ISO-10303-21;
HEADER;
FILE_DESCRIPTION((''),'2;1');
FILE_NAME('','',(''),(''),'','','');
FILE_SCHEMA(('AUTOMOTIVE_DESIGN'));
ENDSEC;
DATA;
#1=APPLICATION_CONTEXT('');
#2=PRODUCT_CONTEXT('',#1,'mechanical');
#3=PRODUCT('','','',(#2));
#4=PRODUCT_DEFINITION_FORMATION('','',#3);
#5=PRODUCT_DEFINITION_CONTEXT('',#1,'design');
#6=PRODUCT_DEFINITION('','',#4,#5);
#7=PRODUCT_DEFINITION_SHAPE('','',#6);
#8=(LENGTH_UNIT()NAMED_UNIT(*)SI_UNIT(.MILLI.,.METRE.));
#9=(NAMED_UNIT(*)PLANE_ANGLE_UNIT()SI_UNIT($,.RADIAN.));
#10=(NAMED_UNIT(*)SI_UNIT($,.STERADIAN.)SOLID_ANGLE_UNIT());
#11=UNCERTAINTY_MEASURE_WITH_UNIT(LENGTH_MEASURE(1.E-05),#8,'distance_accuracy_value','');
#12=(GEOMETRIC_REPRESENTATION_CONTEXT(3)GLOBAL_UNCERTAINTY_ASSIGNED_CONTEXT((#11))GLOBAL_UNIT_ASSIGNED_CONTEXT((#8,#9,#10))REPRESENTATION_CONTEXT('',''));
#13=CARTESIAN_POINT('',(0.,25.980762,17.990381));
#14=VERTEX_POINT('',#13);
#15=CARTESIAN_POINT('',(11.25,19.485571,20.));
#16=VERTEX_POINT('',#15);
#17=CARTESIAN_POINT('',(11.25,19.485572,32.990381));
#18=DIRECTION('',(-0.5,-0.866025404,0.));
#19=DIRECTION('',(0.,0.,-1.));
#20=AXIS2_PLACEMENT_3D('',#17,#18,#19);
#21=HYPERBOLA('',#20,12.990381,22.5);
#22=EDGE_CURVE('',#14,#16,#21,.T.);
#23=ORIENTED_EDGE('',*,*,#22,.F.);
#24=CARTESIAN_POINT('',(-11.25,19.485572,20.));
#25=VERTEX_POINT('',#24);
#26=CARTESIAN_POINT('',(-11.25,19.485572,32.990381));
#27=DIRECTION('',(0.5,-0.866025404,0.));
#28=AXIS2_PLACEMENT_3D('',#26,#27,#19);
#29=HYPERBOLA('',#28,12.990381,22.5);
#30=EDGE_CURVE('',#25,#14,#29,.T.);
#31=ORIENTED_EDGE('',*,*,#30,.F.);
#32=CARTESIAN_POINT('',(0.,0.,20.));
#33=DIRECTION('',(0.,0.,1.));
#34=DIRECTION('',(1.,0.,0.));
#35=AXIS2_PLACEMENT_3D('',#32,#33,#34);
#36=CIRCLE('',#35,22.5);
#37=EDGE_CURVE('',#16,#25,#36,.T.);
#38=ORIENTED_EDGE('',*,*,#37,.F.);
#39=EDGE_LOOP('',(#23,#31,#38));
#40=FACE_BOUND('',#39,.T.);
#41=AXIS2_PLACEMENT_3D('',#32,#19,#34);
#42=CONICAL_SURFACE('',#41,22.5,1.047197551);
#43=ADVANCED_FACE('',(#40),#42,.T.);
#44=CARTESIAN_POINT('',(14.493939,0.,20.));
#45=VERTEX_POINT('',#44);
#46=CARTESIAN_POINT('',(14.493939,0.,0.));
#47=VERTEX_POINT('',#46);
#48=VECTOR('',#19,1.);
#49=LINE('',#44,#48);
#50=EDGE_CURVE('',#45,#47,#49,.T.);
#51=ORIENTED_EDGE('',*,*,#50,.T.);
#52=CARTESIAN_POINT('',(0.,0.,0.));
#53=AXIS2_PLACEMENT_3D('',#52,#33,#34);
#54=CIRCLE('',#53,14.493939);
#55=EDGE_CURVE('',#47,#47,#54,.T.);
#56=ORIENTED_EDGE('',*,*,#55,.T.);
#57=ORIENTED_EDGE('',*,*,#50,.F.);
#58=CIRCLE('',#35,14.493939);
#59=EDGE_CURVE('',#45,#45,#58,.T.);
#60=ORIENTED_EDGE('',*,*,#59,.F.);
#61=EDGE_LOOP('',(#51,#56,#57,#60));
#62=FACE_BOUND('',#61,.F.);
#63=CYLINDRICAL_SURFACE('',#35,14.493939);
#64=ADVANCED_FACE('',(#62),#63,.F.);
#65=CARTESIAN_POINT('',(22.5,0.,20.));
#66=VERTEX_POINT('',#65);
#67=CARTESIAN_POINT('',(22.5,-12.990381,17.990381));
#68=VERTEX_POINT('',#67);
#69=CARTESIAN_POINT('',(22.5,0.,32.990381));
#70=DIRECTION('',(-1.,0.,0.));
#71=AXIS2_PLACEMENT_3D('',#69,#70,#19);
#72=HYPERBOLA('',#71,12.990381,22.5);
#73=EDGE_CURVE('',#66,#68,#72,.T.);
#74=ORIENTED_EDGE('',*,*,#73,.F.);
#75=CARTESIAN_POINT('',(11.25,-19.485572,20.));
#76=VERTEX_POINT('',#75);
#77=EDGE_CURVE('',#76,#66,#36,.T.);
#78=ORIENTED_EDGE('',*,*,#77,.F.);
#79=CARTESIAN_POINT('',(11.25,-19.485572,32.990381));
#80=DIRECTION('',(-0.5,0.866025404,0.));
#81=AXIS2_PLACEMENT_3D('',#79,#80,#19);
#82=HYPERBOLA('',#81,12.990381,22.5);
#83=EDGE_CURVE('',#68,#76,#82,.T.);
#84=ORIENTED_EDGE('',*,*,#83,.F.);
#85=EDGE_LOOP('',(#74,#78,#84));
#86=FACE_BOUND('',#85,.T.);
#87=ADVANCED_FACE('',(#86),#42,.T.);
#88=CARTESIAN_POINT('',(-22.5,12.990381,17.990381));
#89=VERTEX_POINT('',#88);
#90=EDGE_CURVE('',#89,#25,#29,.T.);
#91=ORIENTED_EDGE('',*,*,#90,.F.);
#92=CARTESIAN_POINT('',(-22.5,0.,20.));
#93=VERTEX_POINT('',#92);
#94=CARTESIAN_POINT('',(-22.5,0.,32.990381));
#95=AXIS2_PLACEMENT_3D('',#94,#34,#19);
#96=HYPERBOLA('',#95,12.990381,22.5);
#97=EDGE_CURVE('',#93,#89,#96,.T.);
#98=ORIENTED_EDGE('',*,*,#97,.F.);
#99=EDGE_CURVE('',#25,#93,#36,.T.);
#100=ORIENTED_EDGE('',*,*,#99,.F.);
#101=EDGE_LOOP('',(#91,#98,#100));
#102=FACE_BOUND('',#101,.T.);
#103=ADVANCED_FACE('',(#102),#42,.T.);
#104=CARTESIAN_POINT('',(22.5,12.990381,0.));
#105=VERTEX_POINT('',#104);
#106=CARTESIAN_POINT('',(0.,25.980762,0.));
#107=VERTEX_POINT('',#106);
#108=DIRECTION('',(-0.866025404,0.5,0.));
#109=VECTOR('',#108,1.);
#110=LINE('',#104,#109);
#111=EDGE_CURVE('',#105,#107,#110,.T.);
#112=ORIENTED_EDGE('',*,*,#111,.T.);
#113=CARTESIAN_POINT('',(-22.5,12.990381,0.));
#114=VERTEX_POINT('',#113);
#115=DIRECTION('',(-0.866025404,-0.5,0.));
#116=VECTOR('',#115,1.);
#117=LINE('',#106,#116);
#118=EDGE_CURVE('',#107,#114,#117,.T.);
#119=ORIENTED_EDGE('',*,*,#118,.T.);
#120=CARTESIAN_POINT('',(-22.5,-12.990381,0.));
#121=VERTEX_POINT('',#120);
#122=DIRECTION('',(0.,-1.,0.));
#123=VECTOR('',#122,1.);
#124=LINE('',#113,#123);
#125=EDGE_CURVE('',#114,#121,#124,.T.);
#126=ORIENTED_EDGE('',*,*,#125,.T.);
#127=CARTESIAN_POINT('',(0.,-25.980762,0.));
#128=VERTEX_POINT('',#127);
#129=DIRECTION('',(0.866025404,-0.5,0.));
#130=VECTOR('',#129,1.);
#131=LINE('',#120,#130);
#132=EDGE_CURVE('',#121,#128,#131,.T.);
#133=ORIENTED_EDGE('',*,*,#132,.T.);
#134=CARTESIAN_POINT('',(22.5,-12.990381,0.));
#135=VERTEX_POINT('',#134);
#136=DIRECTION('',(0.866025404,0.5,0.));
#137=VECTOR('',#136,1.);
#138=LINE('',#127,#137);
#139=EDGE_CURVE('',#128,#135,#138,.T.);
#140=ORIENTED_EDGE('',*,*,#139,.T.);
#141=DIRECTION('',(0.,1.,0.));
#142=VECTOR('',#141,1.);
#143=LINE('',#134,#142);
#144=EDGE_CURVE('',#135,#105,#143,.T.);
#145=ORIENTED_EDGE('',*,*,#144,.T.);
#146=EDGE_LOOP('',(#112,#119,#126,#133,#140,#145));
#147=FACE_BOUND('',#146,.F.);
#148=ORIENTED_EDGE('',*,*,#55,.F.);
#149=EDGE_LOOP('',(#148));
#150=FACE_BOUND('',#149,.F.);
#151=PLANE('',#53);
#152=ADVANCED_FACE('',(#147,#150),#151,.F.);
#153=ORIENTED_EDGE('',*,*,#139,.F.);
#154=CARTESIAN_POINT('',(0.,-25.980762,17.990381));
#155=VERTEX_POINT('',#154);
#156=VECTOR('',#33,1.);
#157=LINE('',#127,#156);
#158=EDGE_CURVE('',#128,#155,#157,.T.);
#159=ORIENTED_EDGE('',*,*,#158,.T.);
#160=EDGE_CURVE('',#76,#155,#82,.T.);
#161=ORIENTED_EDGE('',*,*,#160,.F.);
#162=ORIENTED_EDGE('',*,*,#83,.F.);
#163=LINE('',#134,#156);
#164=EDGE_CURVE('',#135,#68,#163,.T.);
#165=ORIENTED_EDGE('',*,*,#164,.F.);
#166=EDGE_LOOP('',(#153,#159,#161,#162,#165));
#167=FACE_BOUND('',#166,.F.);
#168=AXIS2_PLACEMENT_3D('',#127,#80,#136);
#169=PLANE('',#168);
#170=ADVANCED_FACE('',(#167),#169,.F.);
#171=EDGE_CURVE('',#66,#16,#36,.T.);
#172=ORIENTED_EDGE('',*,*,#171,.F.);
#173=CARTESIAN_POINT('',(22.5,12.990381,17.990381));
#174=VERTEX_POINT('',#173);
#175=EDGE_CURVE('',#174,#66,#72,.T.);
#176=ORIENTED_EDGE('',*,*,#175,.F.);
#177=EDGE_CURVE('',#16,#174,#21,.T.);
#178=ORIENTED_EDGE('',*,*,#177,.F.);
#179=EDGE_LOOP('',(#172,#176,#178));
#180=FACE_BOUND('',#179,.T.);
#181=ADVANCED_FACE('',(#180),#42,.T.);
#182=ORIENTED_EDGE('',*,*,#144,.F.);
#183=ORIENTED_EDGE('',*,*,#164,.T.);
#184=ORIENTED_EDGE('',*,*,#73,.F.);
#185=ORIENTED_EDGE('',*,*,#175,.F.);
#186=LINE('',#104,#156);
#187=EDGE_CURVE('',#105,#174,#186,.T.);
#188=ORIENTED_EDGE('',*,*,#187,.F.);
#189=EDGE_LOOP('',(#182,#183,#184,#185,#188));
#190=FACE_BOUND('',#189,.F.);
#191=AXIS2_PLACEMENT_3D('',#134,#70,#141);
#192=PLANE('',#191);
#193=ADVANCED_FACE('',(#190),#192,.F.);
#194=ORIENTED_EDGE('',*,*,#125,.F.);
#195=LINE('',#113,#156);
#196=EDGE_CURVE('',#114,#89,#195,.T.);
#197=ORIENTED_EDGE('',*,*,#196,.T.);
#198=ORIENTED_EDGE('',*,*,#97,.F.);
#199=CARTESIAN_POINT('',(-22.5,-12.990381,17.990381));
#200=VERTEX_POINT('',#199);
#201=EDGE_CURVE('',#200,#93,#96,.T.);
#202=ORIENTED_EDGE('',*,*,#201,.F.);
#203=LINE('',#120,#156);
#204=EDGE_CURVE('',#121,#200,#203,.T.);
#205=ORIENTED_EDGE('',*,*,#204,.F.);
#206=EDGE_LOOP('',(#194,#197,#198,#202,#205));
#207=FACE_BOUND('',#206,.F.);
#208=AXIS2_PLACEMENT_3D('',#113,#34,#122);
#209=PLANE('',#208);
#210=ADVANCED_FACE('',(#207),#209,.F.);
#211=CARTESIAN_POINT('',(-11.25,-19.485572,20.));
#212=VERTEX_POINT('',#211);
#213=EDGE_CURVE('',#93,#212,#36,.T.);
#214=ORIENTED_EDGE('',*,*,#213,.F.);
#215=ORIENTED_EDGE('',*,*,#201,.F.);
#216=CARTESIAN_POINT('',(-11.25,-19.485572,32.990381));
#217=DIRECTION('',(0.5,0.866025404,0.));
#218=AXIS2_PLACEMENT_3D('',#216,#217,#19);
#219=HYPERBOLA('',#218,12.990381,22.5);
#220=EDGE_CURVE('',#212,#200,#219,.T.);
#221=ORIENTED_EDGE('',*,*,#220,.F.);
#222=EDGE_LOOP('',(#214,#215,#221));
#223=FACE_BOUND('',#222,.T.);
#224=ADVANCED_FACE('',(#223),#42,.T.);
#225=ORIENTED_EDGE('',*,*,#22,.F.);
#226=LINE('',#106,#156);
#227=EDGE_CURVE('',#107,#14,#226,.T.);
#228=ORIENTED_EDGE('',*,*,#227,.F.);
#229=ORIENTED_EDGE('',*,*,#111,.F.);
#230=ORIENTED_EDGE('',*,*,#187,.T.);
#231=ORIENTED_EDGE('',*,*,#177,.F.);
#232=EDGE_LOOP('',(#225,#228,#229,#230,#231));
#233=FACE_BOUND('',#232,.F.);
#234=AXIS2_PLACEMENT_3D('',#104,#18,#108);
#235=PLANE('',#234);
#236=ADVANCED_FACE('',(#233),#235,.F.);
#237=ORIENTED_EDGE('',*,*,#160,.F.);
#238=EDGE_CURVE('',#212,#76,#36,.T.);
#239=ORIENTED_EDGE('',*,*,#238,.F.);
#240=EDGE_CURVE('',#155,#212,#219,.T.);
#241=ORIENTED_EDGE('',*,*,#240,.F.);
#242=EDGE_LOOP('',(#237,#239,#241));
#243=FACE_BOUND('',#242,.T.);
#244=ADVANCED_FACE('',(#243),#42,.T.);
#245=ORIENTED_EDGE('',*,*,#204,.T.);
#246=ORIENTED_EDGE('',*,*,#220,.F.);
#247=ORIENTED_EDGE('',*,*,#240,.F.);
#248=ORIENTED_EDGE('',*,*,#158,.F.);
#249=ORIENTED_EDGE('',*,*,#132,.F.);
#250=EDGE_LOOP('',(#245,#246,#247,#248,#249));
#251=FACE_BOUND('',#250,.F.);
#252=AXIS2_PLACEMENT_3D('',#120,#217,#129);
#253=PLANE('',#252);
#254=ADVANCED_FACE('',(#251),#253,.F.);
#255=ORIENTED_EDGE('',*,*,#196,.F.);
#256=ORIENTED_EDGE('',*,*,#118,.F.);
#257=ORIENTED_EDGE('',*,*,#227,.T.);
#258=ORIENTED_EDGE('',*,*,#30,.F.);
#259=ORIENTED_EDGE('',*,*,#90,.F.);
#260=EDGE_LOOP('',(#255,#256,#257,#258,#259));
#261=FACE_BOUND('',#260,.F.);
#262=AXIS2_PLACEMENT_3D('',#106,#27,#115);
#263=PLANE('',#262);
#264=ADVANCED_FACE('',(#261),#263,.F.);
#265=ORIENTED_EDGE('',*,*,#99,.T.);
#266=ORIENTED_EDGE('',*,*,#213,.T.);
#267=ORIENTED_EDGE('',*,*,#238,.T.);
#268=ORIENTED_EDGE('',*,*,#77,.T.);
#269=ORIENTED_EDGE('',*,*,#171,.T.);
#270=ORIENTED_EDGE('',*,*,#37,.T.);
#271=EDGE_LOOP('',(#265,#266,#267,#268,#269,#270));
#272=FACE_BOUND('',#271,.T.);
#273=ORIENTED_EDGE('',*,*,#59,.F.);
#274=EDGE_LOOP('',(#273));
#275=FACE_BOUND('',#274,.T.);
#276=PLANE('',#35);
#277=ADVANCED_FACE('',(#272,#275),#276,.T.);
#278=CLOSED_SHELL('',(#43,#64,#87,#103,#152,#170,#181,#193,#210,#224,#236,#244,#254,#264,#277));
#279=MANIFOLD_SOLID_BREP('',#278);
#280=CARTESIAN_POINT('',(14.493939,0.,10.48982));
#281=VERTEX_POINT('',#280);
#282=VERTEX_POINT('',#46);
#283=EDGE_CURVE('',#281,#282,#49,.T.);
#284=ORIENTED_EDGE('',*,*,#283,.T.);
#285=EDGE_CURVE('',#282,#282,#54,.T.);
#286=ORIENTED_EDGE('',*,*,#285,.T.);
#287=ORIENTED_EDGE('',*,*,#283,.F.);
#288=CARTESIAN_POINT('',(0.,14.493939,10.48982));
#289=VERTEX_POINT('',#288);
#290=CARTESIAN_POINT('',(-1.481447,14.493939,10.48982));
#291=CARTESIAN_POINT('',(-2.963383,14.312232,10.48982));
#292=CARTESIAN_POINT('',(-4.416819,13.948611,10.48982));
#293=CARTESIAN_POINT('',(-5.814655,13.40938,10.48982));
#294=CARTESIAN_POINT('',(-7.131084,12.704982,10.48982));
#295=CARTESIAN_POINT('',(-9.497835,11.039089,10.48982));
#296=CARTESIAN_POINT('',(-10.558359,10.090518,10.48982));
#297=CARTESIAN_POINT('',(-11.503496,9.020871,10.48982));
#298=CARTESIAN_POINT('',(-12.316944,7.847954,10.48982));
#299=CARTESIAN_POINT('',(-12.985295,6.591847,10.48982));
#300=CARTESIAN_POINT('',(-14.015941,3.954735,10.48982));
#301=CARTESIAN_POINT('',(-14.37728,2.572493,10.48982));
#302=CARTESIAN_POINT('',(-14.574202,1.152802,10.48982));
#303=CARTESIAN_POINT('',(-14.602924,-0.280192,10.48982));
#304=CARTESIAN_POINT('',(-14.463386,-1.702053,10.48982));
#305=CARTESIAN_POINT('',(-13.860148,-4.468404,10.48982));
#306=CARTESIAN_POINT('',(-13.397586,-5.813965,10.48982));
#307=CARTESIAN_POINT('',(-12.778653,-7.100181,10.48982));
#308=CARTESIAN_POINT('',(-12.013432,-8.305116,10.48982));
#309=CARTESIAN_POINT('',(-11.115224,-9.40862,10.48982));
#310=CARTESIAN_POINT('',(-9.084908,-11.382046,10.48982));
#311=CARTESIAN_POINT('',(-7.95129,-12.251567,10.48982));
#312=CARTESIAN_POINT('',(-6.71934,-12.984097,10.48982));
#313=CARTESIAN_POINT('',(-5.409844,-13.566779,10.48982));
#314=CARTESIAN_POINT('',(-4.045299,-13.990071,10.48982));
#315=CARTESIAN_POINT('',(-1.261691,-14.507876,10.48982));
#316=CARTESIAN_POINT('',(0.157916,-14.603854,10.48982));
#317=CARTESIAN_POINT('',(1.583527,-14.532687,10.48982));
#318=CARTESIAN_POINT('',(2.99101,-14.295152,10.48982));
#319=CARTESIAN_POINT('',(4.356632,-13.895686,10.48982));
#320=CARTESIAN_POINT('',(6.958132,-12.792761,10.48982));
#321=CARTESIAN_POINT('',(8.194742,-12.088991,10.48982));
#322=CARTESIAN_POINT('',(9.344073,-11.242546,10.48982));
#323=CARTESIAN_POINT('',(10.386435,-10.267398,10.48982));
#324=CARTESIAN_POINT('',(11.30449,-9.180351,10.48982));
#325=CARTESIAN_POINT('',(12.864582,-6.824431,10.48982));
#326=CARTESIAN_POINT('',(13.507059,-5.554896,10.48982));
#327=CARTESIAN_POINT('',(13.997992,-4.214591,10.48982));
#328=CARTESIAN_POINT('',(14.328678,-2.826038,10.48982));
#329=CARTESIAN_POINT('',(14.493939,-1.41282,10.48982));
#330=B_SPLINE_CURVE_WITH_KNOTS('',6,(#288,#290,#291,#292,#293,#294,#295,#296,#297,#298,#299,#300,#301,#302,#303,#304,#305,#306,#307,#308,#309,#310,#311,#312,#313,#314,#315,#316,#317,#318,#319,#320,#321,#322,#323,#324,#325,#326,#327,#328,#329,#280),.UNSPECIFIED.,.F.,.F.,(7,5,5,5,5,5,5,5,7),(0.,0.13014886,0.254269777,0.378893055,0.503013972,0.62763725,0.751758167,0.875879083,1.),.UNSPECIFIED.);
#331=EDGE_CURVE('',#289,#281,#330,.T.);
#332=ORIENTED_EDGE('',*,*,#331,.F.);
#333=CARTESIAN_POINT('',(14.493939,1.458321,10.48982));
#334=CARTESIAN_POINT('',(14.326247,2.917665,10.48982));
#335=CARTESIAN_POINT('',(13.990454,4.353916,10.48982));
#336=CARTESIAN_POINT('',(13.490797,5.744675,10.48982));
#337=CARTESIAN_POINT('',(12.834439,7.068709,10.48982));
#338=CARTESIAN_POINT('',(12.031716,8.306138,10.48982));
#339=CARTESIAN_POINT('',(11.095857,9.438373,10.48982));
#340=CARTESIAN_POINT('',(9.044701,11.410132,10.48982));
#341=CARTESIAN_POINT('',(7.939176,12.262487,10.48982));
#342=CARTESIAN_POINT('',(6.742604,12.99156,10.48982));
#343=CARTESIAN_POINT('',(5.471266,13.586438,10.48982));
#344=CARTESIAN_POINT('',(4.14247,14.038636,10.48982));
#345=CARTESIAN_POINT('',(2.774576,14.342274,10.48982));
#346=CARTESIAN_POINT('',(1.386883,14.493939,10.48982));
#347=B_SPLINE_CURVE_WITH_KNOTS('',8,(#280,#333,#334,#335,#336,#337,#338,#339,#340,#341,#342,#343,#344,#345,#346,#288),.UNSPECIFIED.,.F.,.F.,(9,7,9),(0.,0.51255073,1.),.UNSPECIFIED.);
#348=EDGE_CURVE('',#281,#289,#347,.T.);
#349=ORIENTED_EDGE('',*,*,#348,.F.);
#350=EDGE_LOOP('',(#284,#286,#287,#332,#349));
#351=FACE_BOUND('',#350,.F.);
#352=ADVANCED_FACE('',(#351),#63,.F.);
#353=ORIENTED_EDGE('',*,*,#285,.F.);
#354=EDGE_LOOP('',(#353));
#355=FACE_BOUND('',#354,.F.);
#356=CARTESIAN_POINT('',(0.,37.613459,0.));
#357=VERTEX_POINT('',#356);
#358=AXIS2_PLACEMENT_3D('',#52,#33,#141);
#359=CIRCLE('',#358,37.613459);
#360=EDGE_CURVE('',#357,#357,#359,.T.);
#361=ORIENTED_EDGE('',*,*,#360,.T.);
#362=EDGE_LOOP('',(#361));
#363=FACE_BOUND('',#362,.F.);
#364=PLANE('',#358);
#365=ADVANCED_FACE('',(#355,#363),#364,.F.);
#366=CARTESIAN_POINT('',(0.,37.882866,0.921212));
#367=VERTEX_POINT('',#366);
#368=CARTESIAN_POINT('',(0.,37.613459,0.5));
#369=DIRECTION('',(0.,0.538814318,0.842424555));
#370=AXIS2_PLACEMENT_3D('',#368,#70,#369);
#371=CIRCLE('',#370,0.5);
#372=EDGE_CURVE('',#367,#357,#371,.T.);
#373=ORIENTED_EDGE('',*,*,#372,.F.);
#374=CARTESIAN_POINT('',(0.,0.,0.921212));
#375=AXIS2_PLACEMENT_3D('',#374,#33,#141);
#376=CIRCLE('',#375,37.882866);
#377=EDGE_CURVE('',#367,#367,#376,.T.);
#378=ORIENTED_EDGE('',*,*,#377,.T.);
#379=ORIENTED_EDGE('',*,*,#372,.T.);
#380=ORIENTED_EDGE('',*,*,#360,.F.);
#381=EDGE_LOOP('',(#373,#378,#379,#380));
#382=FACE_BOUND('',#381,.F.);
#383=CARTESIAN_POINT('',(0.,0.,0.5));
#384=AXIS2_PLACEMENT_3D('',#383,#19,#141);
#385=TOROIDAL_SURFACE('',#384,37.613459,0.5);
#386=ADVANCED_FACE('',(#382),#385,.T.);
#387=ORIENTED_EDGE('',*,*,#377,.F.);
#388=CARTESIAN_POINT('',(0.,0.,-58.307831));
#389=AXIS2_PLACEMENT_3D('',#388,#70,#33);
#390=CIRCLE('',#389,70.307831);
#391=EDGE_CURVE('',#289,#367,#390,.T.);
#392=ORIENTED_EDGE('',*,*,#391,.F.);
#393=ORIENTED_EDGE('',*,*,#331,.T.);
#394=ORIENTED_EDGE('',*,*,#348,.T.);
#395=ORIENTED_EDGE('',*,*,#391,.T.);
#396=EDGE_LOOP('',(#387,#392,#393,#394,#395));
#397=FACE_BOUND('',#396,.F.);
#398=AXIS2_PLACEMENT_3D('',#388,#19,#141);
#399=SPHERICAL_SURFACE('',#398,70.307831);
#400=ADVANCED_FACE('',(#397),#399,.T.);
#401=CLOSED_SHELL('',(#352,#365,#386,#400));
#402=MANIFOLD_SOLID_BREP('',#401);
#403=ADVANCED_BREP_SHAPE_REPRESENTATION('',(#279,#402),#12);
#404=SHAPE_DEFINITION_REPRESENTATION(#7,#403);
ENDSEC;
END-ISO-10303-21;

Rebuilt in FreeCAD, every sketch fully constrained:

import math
import FreeCAD as App
import Part
import Sketcher
from FreeCAD import Vector
Q = App.Units.Quantity


def faces_at(feature, points):
    """Names of the faces that lie closest to the given points."""
    faces = feature.Shape.Faces
    near = lambda p: min(range(len(faces)), key=lambda i: faces[i].distToShape(Part.Vertex(*p))[0])
    return sorted({f"Face{near(p) + 1}" for p in points})


def add_polygon(sketch, points):
    """Adds a closed chain of lines whose ends are joined by coincident constraints."""
    first, n = sketch.GeometryCount, len(points)
    for a, b in zip(points, points[1:] + points[:1]):
        sketch.addGeometry(Part.LineSegment(App.Vector(*a, 0), App.Vector(*b, 0)), False)
    for i in range(n):
        sketch.addConstraint(Sketcher.Constraint("Coincident", first + i, 2, first + (i + 1) % n, 1))

doc = App.newDocument("Part")
body = doc.addObject("PartDesign::Body", "Body")

sketch1 = doc.addObject("Sketcher::SketchObject", "Sketch")
body.addObject(sketch1)
sketch1.AttachmentSupport = (doc.XY_Plane, [""])
sketch1.MapMode = "FlatFace"
add_polygon(sketch1, [(22, -13), (22, 13), (0, 26), (-22, 13), (-22, -13), (0, -26)])
sketch1.addConstraint([
    Sketcher.Constraint("Vertical", 0),
    Sketcher.Constraint("Vertical", 3),
    Sketcher.Constraint("Symmetric", 0, 2, 3, 2, -1, 1),
    Sketcher.Constraint("Symmetric", 1, 2, 4, 2, -1, 1),
    Sketcher.Constraint("PointOnObject", 1, 2, -2),
    Sketcher.Constraint("Parallel", 2, 5),
    Sketcher.Constraint("Horizontal", 0, 2, 2, 2),
    Sketcher.Constraint("Angle", 1, Q("150 deg")),
    Sketcher.Constraint("DistanceX", 2, 2, 0, 2, Q("45 mm")),
    Sketcher.Constraint("DistanceY", 0, 1, 0, 2, Q("25.980762 mm")),
])
pad1 = doc.addObject("PartDesign::Pad", "Pad")
body.addObject(pad1)
pad1.Profile = sketch1
pad1.Length = 20
body2 = doc.addObject("PartDesign::Body", "Body001")

sketch2 = doc.addObject("Sketcher::SketchObject", "Sketch001")
body2.addObject(sketch2)
sketch2.AttachmentSupport = (doc.getObject("YZ_Plane001"), [""])
sketch2.MapMode = "FlatFace"
sketch2.addGeometry([
    Part.LineSegment(Vector(0, 0, 0), Vector(0, 12, 0)),
    Part.ArcOfCircle(Part.Circle(Vector(0, -58.3, 0), Vector(0, 0, 1), 70.3), math.radians(90), math.radians(123)),
    Part.ArcOfCircle(Part.Circle(Vector(-37.6, 0.5, 0), Vector(0, 0, 1), 0.5), math.radians(123), math.radians(270)),
    Part.LineSegment(Vector(-37.6, 0, 0), Vector(0, 0, 0)),
], False)
sketch2.addConstraint([
    Sketcher.Constraint("Coincident", 0, 2, 1, 1),
    Sketcher.Constraint("Tangent", 1, 2, 2, 1),
    Sketcher.Constraint("Tangent", 2, 2, 3, 1),
    Sketcher.Constraint("Coincident", 3, 2, 0, 1),
    Sketcher.Constraint("Vertical", 0),
    Sketcher.Constraint("Horizontal", 3),
    Sketcher.Constraint("Coincident", 3, 2, -1, 1),
    Sketcher.Constraint("PointOnObject", 1, 3, -2),
    Sketcher.Constraint("Radius", 2, Q("0.5 mm")),
    Sketcher.Constraint("DistanceY", 0, 1, 0, 2, Q("12 mm")),
    Sketcher.Constraint("Radius", 1, Q("70.307831 mm")),
])
revolution = doc.addObject("PartDesign::Revolution", "Revolution")
body2.addObject(revolution)
revolution.Profile = sketch2
revolution.ReferenceAxis = (sketch2, ["V_Axis"])
revolution.Angle = 360
body3 = doc.addObject("PartDesign::Body", "Body002")

sketch3 = doc.addObject("Sketcher::SketchObject", "Sketch002")
body3.addObject(sketch3)
sketch3.AttachmentSupport = (doc.getObject("XY_Plane002"), [""])
sketch3.MapMode = "FlatFace"
sketch3.AttachmentOffset = App.Placement(Vector(0, 0, 20), App.Rotation())
add_polygon(sketch3, [(-85, 85), (-85, -85), (85, -85), (85, 85)])
sketch3.addGeometry(Part.Circle(Vector(0, 0, 0), Vector(0, 0, 1), 22), False)
sketch3.addConstraint([
    Sketcher.Constraint("Vertical", 0),
    Sketcher.Constraint("Horizontal", 1),
    Sketcher.Constraint("Vertical", 2),
    Sketcher.Constraint("Horizontal", 3),
    Sketcher.Constraint("Coincident", 4, 3, -1, 1),
    Sketcher.Constraint("Symmetric", 0, 2, 2, 2, -1, 1),
    Sketcher.Constraint("Equal", 3, 0),
    Sketcher.Constraint("Diameter", 4, Q("45 mm")),
    Sketcher.Constraint("DistanceX", 1, 1, 1, 2, Q("169.436 mm")),
])
pad2 = doc.addObject("PartDesign::Pad", "Pad001")
body3.addObject(pad2)
pad2.Profile = sketch3
pad2.Length = 20
pad2.Reversed = True
doc.recompute()

datumplane = doc.addObject("PartDesign::Plane", "DatumPlane")
body3.addObject(datumplane)
datumplane.AttachmentSupport = (doc.getObject("XY_Plane002"), [""])
datumplane.MapMode = "FlatFace"
datumplane.AttachmentOffset = App.Placement(Vector(0, 0, 20), App.Rotation())
draft = doc.addObject("PartDesign::Draft", "Draft")
body3.addObject(draft)
draft.Base = (pad2, faces_at(pad2, [
    (0, -84.718, 10),
    (84.718, 0, 10),
    (0, 84.718, 10),
    (-84.718, 0, 10),
    (-22.5, 0, 10),
]))
draft.NeutralPlane = (datumplane, [""])
draft.Angle = 60
draft.Reversed = True
doc.recompute()

boolean = doc.addObject("PartDesign::Boolean", "Boolean")
body.addObject(boolean)
boolean.Type = "Cut"
boolean.addObjects([body3])
body4 = doc.addObject("PartDesign::Body", "Body003")

sketch4 = doc.addObject("Sketcher::SketchObject", "Sketch003")
body4.addObject(sketch4)
sketch4.AttachmentSupport = (doc.getObject("XY_Plane003"), [""])
sketch4.MapMode = "FlatFace"
sketch4.AttachmentOffset = App.Placement(Vector(0, 0, 20), App.Rotation())
sketch4.addGeometry(Part.Circle(Vector(0, 0, 0), Vector(0, 0, 1), 14), False)
sketch4.addConstraint([
    Sketcher.Constraint("Coincident", 0, 3, -1, 1),
    Sketcher.Constraint("Diameter", 0, Q("28.987879 mm")),
])
pad3 = doc.addObject("PartDesign::Pad", "Pad002")
body4.addObject(pad3)
pad3.Profile = sketch4
pad3.Length = 58.491491
pad3.Reversed = True
doc.recompute()

body5 = doc.addObject("PartDesign::Body", "Body004")
body5.BaseFeature = body4
boolean2 = doc.addObject("PartDesign::Boolean", "Boolean001")
body.addObject(boolean2)
boolean2.Type = "Cut"
boolean2.addObjects([body5])
doc.recompute()

boolean3 = doc.addObject("PartDesign::Boolean", "Boolean002")
body2.addObject(boolean3)
boolean3.Type = "Cut"
boolean3.addObjects([body4])

doc.recompute()
